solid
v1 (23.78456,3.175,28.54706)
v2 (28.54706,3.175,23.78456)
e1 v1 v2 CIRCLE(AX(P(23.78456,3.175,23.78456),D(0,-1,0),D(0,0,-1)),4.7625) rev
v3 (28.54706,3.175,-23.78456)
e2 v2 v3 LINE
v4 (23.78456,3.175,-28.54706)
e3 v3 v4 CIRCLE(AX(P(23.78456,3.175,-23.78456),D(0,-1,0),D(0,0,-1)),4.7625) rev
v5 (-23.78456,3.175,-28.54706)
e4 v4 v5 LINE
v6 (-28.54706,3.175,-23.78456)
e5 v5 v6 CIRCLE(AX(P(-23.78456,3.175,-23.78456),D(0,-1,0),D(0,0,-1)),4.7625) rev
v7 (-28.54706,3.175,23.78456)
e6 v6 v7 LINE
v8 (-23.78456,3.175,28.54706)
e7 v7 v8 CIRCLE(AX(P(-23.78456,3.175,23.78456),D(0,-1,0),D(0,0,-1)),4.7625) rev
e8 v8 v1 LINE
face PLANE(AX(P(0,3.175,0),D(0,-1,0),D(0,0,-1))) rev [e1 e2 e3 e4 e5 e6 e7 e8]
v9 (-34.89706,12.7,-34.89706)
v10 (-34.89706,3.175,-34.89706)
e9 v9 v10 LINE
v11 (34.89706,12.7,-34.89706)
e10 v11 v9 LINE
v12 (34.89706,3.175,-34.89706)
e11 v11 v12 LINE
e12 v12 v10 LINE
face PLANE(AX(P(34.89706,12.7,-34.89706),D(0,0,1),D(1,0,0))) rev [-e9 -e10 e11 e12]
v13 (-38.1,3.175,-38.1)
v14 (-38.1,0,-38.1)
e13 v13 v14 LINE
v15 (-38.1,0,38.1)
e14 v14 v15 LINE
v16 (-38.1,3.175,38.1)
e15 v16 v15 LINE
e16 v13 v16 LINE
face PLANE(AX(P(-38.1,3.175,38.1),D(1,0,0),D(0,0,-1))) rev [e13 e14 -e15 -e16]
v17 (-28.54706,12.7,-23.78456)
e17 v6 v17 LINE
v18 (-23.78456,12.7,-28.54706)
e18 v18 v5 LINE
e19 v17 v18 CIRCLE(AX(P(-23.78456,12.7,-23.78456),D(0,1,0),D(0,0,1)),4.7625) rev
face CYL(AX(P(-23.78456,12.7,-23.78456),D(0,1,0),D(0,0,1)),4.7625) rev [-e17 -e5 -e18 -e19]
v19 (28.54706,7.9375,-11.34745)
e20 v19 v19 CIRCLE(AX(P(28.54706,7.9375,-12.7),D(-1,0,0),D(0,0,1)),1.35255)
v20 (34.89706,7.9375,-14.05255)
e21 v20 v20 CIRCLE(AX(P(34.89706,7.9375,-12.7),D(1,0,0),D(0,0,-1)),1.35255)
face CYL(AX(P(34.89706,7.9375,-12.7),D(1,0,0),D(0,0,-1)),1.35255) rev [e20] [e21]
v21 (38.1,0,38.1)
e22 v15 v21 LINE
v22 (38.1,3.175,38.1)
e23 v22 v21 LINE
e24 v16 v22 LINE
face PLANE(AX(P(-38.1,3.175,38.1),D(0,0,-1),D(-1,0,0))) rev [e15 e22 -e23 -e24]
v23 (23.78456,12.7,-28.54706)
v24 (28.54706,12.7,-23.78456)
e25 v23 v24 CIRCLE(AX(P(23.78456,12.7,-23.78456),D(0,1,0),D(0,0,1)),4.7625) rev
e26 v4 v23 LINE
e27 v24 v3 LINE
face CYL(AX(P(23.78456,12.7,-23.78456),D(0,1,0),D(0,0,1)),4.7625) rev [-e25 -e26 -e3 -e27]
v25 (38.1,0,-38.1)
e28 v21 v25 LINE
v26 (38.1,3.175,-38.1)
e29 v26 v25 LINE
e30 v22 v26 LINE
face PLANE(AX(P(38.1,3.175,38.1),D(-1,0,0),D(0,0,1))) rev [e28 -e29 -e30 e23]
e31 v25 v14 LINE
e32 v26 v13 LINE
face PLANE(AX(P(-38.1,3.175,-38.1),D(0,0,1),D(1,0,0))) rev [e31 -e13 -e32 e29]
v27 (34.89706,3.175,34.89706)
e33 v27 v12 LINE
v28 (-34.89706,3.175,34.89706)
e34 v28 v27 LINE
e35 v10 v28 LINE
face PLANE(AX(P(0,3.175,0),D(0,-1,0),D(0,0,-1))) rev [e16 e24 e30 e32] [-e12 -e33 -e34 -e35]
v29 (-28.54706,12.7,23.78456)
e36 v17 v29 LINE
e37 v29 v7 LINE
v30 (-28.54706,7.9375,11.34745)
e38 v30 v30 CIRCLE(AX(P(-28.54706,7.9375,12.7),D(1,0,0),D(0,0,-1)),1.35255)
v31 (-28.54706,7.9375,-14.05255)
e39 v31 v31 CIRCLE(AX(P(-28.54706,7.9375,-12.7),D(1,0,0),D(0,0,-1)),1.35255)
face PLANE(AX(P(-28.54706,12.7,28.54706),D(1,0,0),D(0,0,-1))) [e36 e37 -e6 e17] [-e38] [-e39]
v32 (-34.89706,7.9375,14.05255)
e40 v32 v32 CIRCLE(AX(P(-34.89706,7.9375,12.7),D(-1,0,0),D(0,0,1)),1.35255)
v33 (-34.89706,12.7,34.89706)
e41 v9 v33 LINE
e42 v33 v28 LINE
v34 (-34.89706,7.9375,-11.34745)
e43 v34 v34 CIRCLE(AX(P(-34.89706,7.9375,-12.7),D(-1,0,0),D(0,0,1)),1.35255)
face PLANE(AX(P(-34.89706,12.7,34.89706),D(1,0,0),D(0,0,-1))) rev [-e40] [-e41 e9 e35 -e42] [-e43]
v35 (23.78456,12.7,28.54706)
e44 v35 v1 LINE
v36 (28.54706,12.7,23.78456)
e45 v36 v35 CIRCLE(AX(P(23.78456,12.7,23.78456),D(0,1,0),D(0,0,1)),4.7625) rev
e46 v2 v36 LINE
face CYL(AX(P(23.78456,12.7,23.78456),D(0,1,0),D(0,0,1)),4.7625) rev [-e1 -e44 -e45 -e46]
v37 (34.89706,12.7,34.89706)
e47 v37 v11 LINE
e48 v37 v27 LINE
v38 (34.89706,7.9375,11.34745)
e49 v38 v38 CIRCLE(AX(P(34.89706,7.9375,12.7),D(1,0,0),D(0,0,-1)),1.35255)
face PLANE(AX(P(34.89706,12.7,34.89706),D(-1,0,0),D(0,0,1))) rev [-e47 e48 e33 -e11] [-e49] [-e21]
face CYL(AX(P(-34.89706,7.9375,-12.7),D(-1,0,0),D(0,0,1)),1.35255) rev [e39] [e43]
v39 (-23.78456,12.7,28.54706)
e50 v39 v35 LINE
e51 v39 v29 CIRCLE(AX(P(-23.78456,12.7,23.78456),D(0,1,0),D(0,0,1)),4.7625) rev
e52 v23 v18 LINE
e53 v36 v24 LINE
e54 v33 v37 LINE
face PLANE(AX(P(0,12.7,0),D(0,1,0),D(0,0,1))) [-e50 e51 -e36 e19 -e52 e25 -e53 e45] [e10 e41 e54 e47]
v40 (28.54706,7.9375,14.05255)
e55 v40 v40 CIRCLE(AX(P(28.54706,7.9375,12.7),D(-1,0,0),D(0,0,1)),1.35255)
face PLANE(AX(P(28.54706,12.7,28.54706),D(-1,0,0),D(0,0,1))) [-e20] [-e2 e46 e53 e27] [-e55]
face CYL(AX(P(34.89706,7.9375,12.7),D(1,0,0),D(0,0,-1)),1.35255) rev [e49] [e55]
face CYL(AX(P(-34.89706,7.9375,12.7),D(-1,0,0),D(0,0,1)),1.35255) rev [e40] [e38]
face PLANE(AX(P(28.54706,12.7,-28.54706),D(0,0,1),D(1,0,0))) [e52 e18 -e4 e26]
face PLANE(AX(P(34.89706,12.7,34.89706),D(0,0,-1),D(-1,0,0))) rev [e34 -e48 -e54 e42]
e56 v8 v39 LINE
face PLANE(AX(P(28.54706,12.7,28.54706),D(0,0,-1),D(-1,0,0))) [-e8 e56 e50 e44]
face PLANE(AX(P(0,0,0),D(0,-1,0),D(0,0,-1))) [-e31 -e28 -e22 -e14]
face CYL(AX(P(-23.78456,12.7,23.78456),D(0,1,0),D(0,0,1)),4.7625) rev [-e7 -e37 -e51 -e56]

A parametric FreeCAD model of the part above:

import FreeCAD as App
import Part
import Sketcher
from FreeCAD import Vector
Q = App.Units.Quantity


def edges_at(feature, points):
    """Names of the edges that pass closest to the given points."""
    edges = feature.Shape.Edges
    near = lambda p: min(range(len(edges)), key=lambda i: edges[i].distToShape(Part.Vertex(*p))[0])
    return sorted({f"Edge{near(p) + 1}" for p in points})

doc = App.newDocument("Part")
body = doc.addObject("PartDesign::Body", "Body")

# Sketch on XZ plane
sketch1 = doc.addObject("Sketcher::SketchObject", "Sketch")
body.addObject(sketch1)
sketch1.AttachmentSupport = (doc.XZ_Plane, [""])
sketch1.MapMode = "FlatFace"
sketch1.addGeometry([
    Part.LineSegment(Vector(-38.1, -38.1, 0), Vector(-38.1, 38.1, 0)),
    Part.LineSegment(Vector(-38.1, 38.1, 0), Vector(38.1, 38.1, 0)),
    Part.LineSegment(Vector(38.1, 38.1, 0), Vector(38.1, -38.1, 0)),
    Part.LineSegment(Vector(38.1, -38.1, 0), Vector(-38.1, -38.1, 0)),
], False)
sketch1.addConstraint([
    Sketcher.Constraint("Coincident", 0, 2, 1, 1),
    Sketcher.Constraint("Coincident", 1, 2, 2, 1),
    Sketcher.Constraint("Coincident", 2, 2, 3, 1),
    Sketcher.Constraint("Coincident", 3, 2, 0, 1),
    Sketcher.Constraint("Vertical", 0),
    Sketcher.Constraint("Horizontal", 1),
    Sketcher.Constraint("Vertical", 2),
    Sketcher.Constraint("Horizontal", 3),
    Sketcher.Constraint("Symmetric", 0, 2, 2, 2, -1, 1),
    Sketcher.Constraint("Equal", 3, 0),
    Sketcher.Constraint("DistanceX", 1, 1, 1, 2, Q("3 in")),
])
pad1 = doc.addObject("PartDesign::Pad", "Pad")
body.addObject(pad1)
pad1.Profile = sketch1
pad1.Length = Q("0.125 in")
pad1.Reversed = True

# Sketch on XZ plane
sketch2 = doc.addObject("Sketcher::SketchObject", "Sketch001")
body.addObject(sketch2)
sketch2.AttachmentSupport = (doc.XZ_Plane, [""])
sketch2.MapMode = "FlatFace"
sketch2.AttachmentOffset = App.Placement(Vector(0, 0, -0.125 * 25.4), App.Rotation())
sketch2.addGeometry([
    Part.LineSegment(Vector(-34.89706, -34.89706, 0), Vector(-34.89706, 34.89706, 0)),  # 0
    Part.LineSegment(Vector(-34.89706, 34.89706, 0), Vector(34.89706, 34.89706, 0)),  # 1
    Part.LineSegment(Vector(34.89706, 34.89706, 0), Vector(34.89706, -34.89706, 0)),  # 2
    Part.LineSegment(Vector(34.89706, -34.89706, 0), Vector(-34.89706, -34.89706, 0)),  # 3
    Part.LineSegment(Vector(28.54706, 28.54706, 0), Vector(-28.54706, 28.54706, 0)),  # 4
    Part.LineSegment(Vector(-28.54706, 28.54706, 0), Vector(-28.54706, -28.54706, 0)),  # 5
    Part.LineSegment(Vector(-28.54706, -28.54706, 0), Vector(28.54706, -28.54706, 0)),  # 6
    Part.LineSegment(Vector(28.54706, -28.54706, 0), Vector(28.54706, 28.54706, 0)),  # 7
], False)
sketch2.addConstraint([
    Sketcher.Constraint("Coincident", 0, 2, 1, 1),
    Sketcher.Constraint("Coincident", 1, 2, 2, 1),
    Sketcher.Constraint("Coincident", 2, 2, 3, 1),
    Sketcher.Constraint("Coincident", 3, 2, 0, 1),
    Sketcher.Constraint("Coincident", 4, 2, 5, 1),
    Sketcher.Constraint("Coincident", 5, 2, 6, 1),
    Sketcher.Constraint("Coincident", 6, 2, 7, 1),
    Sketcher.Constraint("Coincident", 7, 2, 4, 1),
    Sketcher.Constraint("Vertical", 0),
    Sketcher.Constraint("Horizontal", 1),
    Sketcher.Constraint("Vertical", 2),
    Sketcher.Constraint("Horizontal", 3),
    Sketcher.Constraint("Horizontal", 4),
    Sketcher.Constraint("Vertical", 5),
    Sketcher.Constraint("Horizontal", 6),
    Sketcher.Constraint("Vertical", 7),
    Sketcher.Constraint("Symmetric", 0, 2, 2, 2, -1, 1),
    Sketcher.Constraint("Symmetric", 4, 2, 6, 2, -1, 1),
    Sketcher.Constraint("Equal", 3, 0),
    Sketcher.Constraint("Equal", 6, 5),
    Sketcher.Constraint("DistanceX", 0, 2, 4, 2, Q("0.25 in")),
    Sketcher.Constraint("DistanceX", 1, 1, 1, 2, Q("2.7478 in")),
])
pad2 = doc.addObject("PartDesign::Pad", "Pad001")
body.addObject(pad2)
pad2.Profile = sketch2
pad2.Length = Q("0.375 in")
pad2.Reversed = True
doc.recompute()

fillet = doc.addObject("PartDesign::Fillet", "Fillet")
body.addObject(fillet)
fillet.Base = (pad2, edges_at(pad2, [
    (-28.547, 7.938, 28.547),
    (28.547, 7.938, 28.547),
    (28.547, 7.938, -28.547),
    (-28.547, 7.938, -28.547),
]))
fillet.Radius = Q("0.1875 in")

# Sketch on XZ plane
sketch3 = doc.addObject("Sketcher::SketchObject", "Sketch002")
body.addObject(sketch3)
sketch3.AttachmentSupport = (doc.XZ_Plane, [""])
sketch3.MapMode = "FlatFace"
sketch3.AttachmentOffset = App.Placement(Vector(0, 0, -0.3125 * 25.4), App.Rotation())
sketch3.addGeometry([
    Part.LineSegment(Vector(22.908366, 12.7, 0), Vector(34.89706, 12.7, 0)),
    Part.LineSegment(Vector(34.89706, 12.7, 0), Vector(34.89706, 11.34745, 0)),
    Part.LineSegment(Vector(34.89706, 11.34745, 0), Vector(23.72106, 11.34745, 0)),
    Part.LineSegment(Vector(23.72106, 11.34745, 0), Vector(22.908366, 12.7, 0)),
], False)
sketch3.addGeometry(Part.LineSegment(Vector(34.89706, 12.7, 0), Vector(22.908366, 12.7, 0)), True)  # axis
sketch3.addConstraint([
    Sketcher.Constraint("Coincident", 0, 2, 1, 1),
    Sketcher.Constraint("Coincident", 1, 2, 2, 1),
    Sketcher.Constraint("Coincident", 2, 2, 3, 1),
    Sketcher.Constraint("Coincident", 3, 2, 0, 1),
    Sketcher.Constraint("Horizontal", 0),
    Sketcher.Constraint("Vertical", 1),
    Sketcher.Constraint("Horizontal", 2),
    Sketcher.Constraint("Horizontal", 4),
    Sketcher.Constraint("Coincident", 4, 1, 0, 2),
    Sketcher.Constraint("Equal", 0, 4),
    Sketcher.Constraint("Angle", 3, Q("121 deg")),
    Sketcher.Constraint("DistanceX", 2, 2, 2, 1, Q("0.44 in")),
    Sketcher.Constraint("DistanceY", -1, 1, 0, 2, Q("0.5 in")),
    Sketcher.Constraint("DistanceX", -1, 1, 0, 2, Q("1.3739 in")),
    Sketcher.Constraint("DistanceY", 1, 2, 1, 1, 1.35255),
])
groove = doc.addObject("PartDesign::Groove", "Groove")
body.addObject(groove)
groove.Profile = sketch3
groove.ReferenceAxis = (sketch3, ["Axis0"])
groove.Angle = 360
doc.recompute()

mirrored = doc.addObject("PartDesign::Mirrored", "Mirrored")
body.addObject(mirrored)
mirrored.Originals = [groove]
mirrored.MirrorPlane = (doc.XY_Plane, [""])
body.Tip = mirrored
doc.recompute()

mirrored2 = doc.addObject("PartDesign::Mirrored", "Mirrored001")
body.addObject(mirrored2)
mirrored2.Originals = [groove]
mirrored2.MirrorPlane = (doc.YZ_Plane, [""])
body.Tip = mirrored2

# Sketch on XZ plane
sketch4 = doc.addObject("Sketcher::SketchObject", "Sketch003")
body.addObject(sketch4)
sketch4.AttachmentSupport = (doc.XZ_Plane, [""])
sketch4.MapMode = "FlatFace"
sketch4.AttachmentOffset = App.Placement(Vector(0, 0, -0.3125 * 25.4), App.Rotation())
sketch4.addGeometry([
    Part.LineSegment(Vector(-22.908366, -12.7, 0), Vector(-34.89706, -12.7, 0)),
    Part.LineSegment(Vector(-34.89706, -12.7, 0), Vector(-34.89706, -11.34745, 0)),
    Part.LineSegment(Vector(-34.89706, -11.34745, 0), Vector(-23.72106, -11.34745, 0)),
    Part.LineSegment(Vector(-23.72106, -11.34745, 0), Vector(-22.908366, -12.7, 0)),
], False)
sketch4.addGeometry(Part.LineSegment(Vector(-34.89706, -12.7, 0), Vector(-22.908366, -12.7, 0)), True)  # axis
sketch4.addConstraint([
    Sketcher.Constraint("Coincident", 0, 2, 1, 1),
    Sketcher.Constraint("Coincident", 1, 2, 2, 1),
    Sketcher.Constraint("Coincident", 2, 2, 3, 1),
    Sketcher.Constraint("Coincident", 3, 2, 0, 1),
    Sketcher.Constraint("Horizontal", 0),
    Sketcher.Constraint("Vertical", 1),
    Sketcher.Constraint("Horizontal", 2),
    Sketcher.Constraint("Horizontal", 4),
    Sketcher.Constraint("Coincident", 4, 1, 0, 2),
    Sketcher.Constraint("Equal", 0, 4),
    Sketcher.Constraint("Angle", 3, Q("-59 deg")),
    Sketcher.Constraint("DistanceX", 2, 1, 2, 2, Q("0.44 in")),
    Sketcher.Constraint("DistanceY", 0, 2, -1, 1, Q("0.5 in")),
    Sketcher.Constraint("DistanceX", 0, 2, -1, 1, Q("1.3739 in")),
    Sketcher.Constraint("DistanceY", 1, 1, 1, 2, 1.35255),
])
groove2 = doc.addObject("PartDesign::Groove", "Groove001")
body.addObject(groove2)
groove2.Profile = sketch4
groove2.ReferenceAxis = (sketch4, ["Axis0"])
groove2.Angle = 360

doc.recompute()
